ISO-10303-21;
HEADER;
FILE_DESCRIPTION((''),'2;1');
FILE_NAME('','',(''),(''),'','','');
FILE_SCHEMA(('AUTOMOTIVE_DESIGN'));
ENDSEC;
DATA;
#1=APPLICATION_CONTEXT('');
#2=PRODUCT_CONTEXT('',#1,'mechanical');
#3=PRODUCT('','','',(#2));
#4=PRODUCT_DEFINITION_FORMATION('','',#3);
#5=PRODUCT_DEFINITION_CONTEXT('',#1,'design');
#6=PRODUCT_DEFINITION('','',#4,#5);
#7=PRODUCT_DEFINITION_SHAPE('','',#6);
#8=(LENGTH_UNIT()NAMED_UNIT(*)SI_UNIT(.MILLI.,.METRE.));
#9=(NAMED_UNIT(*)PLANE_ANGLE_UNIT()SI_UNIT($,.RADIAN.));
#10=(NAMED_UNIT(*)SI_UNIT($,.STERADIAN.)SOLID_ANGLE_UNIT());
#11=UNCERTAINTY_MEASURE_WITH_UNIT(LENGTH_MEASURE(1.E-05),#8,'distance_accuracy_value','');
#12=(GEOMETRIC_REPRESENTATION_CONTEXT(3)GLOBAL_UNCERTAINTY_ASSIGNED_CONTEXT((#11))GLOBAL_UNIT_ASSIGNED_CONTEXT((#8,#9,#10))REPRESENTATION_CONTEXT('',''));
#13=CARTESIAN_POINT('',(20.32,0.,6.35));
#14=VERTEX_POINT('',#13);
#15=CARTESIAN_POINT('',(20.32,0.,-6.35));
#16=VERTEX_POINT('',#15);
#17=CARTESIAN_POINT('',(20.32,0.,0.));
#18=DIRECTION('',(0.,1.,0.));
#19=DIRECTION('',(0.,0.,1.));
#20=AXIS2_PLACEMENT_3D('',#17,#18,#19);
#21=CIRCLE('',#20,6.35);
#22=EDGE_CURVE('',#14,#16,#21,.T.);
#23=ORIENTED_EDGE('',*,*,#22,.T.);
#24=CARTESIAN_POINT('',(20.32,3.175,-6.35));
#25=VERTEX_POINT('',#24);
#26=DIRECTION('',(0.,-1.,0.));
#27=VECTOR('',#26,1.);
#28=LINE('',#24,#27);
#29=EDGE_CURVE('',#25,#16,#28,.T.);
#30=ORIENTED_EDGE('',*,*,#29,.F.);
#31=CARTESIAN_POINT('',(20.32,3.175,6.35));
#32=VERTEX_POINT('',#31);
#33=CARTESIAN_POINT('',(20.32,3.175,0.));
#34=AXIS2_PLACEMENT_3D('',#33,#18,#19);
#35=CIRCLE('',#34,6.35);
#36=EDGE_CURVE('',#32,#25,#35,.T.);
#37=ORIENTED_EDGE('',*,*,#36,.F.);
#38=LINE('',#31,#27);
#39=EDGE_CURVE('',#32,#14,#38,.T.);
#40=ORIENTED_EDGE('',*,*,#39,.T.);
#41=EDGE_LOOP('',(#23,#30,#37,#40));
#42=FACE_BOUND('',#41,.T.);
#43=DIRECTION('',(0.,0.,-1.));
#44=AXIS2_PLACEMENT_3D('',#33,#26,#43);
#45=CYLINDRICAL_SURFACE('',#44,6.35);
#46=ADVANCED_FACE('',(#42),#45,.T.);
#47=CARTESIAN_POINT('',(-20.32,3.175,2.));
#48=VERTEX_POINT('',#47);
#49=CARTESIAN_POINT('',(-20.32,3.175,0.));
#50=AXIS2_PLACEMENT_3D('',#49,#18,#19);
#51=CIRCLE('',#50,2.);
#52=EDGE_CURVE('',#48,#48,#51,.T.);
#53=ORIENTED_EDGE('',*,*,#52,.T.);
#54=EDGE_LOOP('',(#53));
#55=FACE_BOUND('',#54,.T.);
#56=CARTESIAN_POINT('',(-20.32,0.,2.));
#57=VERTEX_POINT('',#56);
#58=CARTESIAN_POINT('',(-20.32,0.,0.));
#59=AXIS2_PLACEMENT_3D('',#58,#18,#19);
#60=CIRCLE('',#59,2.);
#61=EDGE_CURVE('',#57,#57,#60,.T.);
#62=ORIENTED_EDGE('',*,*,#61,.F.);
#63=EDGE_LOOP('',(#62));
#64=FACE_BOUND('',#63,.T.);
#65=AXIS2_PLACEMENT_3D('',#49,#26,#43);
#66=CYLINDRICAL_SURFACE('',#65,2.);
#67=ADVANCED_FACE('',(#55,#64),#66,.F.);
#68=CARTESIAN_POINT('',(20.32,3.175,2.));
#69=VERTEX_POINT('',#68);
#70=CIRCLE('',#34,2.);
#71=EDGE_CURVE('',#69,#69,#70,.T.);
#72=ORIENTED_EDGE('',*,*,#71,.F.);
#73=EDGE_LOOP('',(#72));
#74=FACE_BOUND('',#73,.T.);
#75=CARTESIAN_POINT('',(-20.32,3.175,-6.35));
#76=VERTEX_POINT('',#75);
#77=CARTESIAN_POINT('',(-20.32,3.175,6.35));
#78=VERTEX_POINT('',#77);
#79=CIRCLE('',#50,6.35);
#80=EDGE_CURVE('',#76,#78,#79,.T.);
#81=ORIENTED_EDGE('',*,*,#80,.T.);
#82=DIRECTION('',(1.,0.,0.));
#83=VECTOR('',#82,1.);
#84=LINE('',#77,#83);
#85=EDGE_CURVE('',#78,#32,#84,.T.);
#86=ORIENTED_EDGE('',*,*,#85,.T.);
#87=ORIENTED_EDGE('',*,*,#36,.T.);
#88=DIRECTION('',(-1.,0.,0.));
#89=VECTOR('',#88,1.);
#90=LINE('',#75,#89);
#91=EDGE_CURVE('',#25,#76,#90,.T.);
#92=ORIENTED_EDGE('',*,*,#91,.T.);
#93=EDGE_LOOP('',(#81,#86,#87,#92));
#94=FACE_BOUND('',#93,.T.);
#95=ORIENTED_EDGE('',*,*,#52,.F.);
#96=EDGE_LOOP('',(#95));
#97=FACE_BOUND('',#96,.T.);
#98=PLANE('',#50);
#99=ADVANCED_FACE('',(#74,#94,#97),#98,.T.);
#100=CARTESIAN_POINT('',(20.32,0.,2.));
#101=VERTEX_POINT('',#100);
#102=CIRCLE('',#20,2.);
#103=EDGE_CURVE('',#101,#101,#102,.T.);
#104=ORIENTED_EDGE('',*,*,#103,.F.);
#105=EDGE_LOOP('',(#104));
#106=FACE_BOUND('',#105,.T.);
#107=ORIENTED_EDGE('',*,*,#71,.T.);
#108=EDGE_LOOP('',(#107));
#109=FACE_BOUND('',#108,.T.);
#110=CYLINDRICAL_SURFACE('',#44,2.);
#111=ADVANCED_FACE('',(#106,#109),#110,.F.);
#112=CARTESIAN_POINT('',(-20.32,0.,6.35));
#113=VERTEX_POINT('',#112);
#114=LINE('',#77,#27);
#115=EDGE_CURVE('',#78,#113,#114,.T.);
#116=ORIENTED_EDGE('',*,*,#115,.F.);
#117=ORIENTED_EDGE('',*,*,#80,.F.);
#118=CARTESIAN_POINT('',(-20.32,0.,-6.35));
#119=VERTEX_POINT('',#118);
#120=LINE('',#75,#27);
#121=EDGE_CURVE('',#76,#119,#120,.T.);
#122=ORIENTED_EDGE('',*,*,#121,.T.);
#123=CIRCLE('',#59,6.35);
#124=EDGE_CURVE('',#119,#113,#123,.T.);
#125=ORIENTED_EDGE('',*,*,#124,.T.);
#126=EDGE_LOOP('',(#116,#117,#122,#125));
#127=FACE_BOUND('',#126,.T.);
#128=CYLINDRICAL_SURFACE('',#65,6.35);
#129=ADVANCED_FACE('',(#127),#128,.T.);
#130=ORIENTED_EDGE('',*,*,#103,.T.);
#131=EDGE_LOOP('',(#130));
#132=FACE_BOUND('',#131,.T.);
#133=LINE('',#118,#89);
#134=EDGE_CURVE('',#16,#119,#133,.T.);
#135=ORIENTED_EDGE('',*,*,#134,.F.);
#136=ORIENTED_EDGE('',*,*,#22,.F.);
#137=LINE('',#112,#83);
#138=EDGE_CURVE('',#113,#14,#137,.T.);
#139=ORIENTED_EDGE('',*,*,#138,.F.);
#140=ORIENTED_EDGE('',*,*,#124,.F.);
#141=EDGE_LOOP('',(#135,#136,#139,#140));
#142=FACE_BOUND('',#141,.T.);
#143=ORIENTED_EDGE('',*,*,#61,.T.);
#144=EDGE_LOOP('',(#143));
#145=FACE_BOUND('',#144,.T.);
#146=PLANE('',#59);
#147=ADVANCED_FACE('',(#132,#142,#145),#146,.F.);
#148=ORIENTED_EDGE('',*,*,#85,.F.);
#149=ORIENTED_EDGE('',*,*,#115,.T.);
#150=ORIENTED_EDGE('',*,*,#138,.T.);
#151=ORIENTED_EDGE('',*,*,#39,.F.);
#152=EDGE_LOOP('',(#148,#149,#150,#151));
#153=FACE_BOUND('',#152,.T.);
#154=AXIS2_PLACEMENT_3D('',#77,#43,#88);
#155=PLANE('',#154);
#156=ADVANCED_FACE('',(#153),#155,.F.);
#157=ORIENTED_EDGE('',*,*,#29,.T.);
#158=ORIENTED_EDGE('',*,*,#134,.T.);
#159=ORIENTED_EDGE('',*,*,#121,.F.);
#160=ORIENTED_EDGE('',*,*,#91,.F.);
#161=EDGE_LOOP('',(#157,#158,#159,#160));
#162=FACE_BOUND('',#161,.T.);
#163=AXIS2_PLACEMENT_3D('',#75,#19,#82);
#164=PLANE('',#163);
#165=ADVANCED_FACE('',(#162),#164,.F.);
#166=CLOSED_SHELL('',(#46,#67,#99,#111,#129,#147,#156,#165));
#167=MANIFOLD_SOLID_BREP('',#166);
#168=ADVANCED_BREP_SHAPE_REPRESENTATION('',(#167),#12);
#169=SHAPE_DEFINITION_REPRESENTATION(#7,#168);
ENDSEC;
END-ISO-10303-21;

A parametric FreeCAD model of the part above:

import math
import FreeCAD as App
import Part
import Sketcher
Q = App.Units.Quantity

doc = App.newDocument("Part")
body = doc.addObject("PartDesign::Body", "Body")

# Sketch on XZ plane
sketch1 = body.newObject("Sketcher::SketchObject", "Sketch")
sketch1.AttachmentSupport = (doc.getObject("XZ_Plane"), [""])
sketch1.MapMode = "FlatFace"
sketch1.addGeometry([
    Part.LineSegment(App.Vector(20.32, -6.35, 0), App.Vector(-20.32, -6.35, 0)),  # 0
    Part.ArcOfCircle(Part.Circle(App.Vector(-20.32, 0, 0), App.Vector(0, 0, 1), 6.35), math.radians(90), math.radians(270)),  # 1
    Part.LineSegment(App.Vector(-20.32, 6.35, 0), App.Vector(20.32, 6.35, 0)),  # 2
    Part.ArcOfCircle(Part.Circle(App.Vector(20.32, 0, 0), App.Vector(0, 0, 1), 6.35), math.radians(-90), math.radians(90)),  # 3
    Part.Circle(App.Vector(20.32, 0, 0), App.Vector(0, 0, 1), 2),  # 4
    Part.Circle(App.Vector(-20.32, 0, 0), App.Vector(0, 0, 1), 2),  # 5
], False)
sketch1.addConstraint([
    Sketcher.Constraint("Tangent", 0, 2, 1, 2),
    Sketcher.Constraint("Tangent", 1, 1, 2, 1),
    Sketcher.Constraint("Tangent", 2, 2, 3, 2),
    Sketcher.Constraint("Tangent", 3, 1, 0, 1),
    Sketcher.Constraint("Horizontal", 0),
    Sketcher.Constraint("Horizontal", 2),
    Sketcher.Constraint("Coincident", 4, 3, 3, 3),
    Sketcher.Constraint("Coincident", 5, 3, 1, 3),
    Sketcher.Constraint("Equal", 4, 5),
    Sketcher.Constraint("Symmetric", 1, 3, 3, 3, -1, 1),
    Sketcher.Constraint("Radius", 1, Q("0.25 in")),
    Sketcher.Constraint("DistanceX", 0, 2, 0, 1, Q("1.6 in")),
    Sketcher.Constraint("Diameter", 4, 4.0),
])
pad1 = body.newObject("PartDesign::Pad", "Pad")
pad1.Profile = sketch1
pad1.Length = Q("0.125 in")
pad1.Reversed = True

doc.recompute()
